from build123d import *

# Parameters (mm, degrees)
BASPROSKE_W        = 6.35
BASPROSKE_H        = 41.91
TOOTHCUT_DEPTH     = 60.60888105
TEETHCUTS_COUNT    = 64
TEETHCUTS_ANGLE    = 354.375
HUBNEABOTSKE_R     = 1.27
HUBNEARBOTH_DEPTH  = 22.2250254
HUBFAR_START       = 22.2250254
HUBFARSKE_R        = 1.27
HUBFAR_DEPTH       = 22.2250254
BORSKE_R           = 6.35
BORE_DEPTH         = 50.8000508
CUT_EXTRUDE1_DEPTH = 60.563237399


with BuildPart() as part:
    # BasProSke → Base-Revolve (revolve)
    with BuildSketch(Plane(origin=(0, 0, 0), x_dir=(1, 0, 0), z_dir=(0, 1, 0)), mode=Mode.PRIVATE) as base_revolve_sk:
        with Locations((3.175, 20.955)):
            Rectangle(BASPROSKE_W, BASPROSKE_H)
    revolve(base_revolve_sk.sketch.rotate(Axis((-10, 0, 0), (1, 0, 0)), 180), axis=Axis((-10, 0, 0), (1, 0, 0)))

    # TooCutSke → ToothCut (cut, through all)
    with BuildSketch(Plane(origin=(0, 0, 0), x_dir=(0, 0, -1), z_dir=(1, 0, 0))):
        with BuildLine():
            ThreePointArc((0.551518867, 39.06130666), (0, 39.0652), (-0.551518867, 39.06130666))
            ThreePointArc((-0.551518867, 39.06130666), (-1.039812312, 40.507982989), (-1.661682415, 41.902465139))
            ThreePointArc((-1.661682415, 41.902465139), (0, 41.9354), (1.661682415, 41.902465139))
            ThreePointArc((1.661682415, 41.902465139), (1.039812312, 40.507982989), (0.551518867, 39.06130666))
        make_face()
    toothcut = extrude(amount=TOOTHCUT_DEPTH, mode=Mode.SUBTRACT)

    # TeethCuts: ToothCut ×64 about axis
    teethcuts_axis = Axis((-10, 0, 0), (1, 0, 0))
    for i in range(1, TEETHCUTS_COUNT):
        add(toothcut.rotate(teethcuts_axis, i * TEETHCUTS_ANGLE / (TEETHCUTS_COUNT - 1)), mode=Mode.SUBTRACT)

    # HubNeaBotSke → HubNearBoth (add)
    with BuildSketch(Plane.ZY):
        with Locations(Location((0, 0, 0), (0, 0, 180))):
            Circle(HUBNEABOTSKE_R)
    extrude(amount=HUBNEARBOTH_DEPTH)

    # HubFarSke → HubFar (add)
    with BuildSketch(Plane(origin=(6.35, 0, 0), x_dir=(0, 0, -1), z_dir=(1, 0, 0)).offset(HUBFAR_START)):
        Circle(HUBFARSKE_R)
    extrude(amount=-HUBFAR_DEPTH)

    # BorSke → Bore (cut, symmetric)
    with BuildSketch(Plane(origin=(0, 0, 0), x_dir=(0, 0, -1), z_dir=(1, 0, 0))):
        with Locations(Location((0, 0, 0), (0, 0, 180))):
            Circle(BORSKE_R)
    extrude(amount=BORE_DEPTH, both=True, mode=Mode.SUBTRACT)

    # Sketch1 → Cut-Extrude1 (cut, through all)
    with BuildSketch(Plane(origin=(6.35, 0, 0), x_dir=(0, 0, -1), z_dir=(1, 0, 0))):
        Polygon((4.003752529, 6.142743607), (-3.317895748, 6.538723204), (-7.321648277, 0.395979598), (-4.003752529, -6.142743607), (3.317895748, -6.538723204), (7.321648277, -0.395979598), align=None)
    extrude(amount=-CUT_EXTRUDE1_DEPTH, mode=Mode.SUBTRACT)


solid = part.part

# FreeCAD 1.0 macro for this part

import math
import FreeCAD as App
import Part
import Sketcher
Q = App.Units.Quantity

doc = App.newDocument("Part")
body = doc.addObject("PartDesign::Body", "Body")

# Sketch on XZ plane
sketch1 = body.newObject("Sketcher::SketchObject", "Sketch")
sketch1.AttachmentSupport = (doc.getObject("XZ_Plane"), [""])
sketch1.MapMode = "FlatFace"
sketch1.addGeometry([
    Part.LineSegment(App.Vector(0, -42, 0), App.Vector(0, 0, 0)),
    Part.LineSegment(App.Vector(0, 0, 0), App.Vector(6, 0, 0)),
    Part.LineSegment(App.Vector(6, 0, 0), App.Vector(6, -42, 0)),
    Part.LineSegment(App.Vector(6, -42, 0), App.Vector(0, -42, 0)),
], False)
sketch1.addConstraint([
    Sketcher.Constraint("Coincident", 0, 2, 1, 1),
    Sketcher.Constraint("Coincident", 1, 2, 2, 1),
    Sketcher.Constraint("Coincident", 2, 2, 3, 1),
    Sketcher.Constraint("Coincident", 3, 2, 0, 1),
    Sketcher.Constraint("Vertical", 0),
    Sketcher.Constraint("Horizontal", 1),
    Sketcher.Constraint("Vertical", 2),
    Sketcher.Constraint("Horizontal", 3),
    Sketcher.Constraint("Coincident", 0, 2, -1, 1),
    Sketcher.Constraint("DistanceX", 1, 1, 1, 2, Q("0.25 in")),
    Sketcher.Constraint("DistanceY", 0, 1, 0, 2, Q("1.65 in")),
])
revolution = body.newObject("PartDesign::Revolution", "Revolution")
revolution.Profile = sketch1
revolution.ReferenceAxis = (sketch1, ["H_Axis"])
revolution.Angle = 360

# Sketch on YZ plane
sketch2 = body.newObject("Sketcher::SketchObject", "Sketch001")
sketch2.AttachmentSupport = (doc.getObject("YZ_Plane"), [""])
sketch2.MapMode = "FlatFace"
sketch2.addGeometry([
    Part.ArcOfCircle(Part.Circle(App.Vector(0, 0, 0), App.Vector(0, 0, 1), 39.1), math.radians(-0.81), math.radians(0.81)),
    Part.ArcOfCircle(Part.Circle(App.Vector(34.6, -16.2, 0), App.Vector(0, 0, 1), 16.3), math.radians(63.27), math.radians(74.04)),
    Part.ArcOfCircle(Part.Circle(App.Vector(0, 0, 0), App.Vector(0, 0, 1), 41.9), math.radians(-2.27), math.radians(2.27)),
    Part.ArcOfCircle(Part.Circle(App.Vector(34.6, 16.2, 0), App.Vector(0, 0, 1), 16.3), math.radians(-74.04), math.radians(-63.27)),
], False)
sketch2.addConstraint([
    Sketcher.Constraint("Coincident", 0, 1, 1, 2),
    Sketcher.Constraint("Coincident", 1, 1, 2, 1),
    Sketcher.Constraint("Coincident", 2, 2, 3, 2),
    Sketcher.Constraint("Coincident", 3, 1, 0, 2),
    Sketcher.Constraint("Coincident", 0, 3, -1, 1),
    Sketcher.Constraint("Coincident", 2, 3, -1, 1),
    Sketcher.Constraint("Equal", 1, 3),
    Sketcher.Constraint("Symmetric", 1, 3, 3, 3, -1),
    Sketcher.Constraint("Radius", 1, Q("0.64 in")),
    Sketcher.Constraint("Radius", 0, Q("1.538 in")),
    Sketcher.Constraint("Radius", 2, Q("1.651 in")),
    Sketcher.Constraint("DistanceY", 0, 1, 2, 2, Q("2.213201 mm")),
    Sketcher.Constraint("DistanceY", -1, 1, 3, 1, Q("0.551519 mm")),
])
pocket1 = body.newObject("PartDesign::Pocket", "Pocket")
pocket1.Profile = sketch2
pocket1.Type = "ThroughAll"
pocket1.Reversed = True
doc.recompute()

polarpattern = body.newObject("PartDesign::PolarPattern", "PolarPattern")
polarpattern.Originals = [pocket1]
polarpattern.Axis = (doc.getObject("X_Axis"), [""])
polarpattern.Angle = 360
polarpattern.Occurrences = 64
body.Tip = polarpattern

# Sketch on YZ plane
sketch3 = body.newObject("Sketcher::SketchObject", "Sketch002")
sketch3.AttachmentSupport = (doc.getObject("YZ_Plane"), [""])
sketch3.MapMode = "FlatFace"
sketch3.addGeometry(Part.Circle(App.Vector(0, 0, 0), App.Vector(0, 0, 1), 1.3), False)
sketch3.addConstraint([
    Sketcher.Constraint("Coincident", 0, 3, -1, 1),
    Sketcher.Constraint("Diameter", 0, Q("0.1 in")),
])
pad1 = body.newObject("PartDesign::Pad", "Pad")
pad1.Profile = sketch3
pad1.Length = 22.225025
pad1.Reversed = True

# Sketch on YZ plane
sketch4 = body.newObject("Sketcher::SketchObject", "Sketch003")
sketch4.AttachmentSupport = (doc.getObject("YZ_Plane"), [""])
sketch4.MapMode = "FlatFace"
sketch4.AttachmentOffset = App.Placement(App.Vector(0, 0, 28.575025), App.Rotation())
sketch4.addGeometry(Part.Circle(App.Vector(0, 0, 0), App.Vector(0, 0, 1), 1.3), False)
sketch4.addConstraint([
    Sketcher.Constraint("Coincident", 0, 3, -1, 1),
    Sketcher.Constraint("Diameter", 0, Q("0.1 in")),
])
pad2 = body.newObject("PartDesign::Pad", "Pad001")
pad2.Profile = sketch4
pad2.Length = 22.225025
pad2.Reversed = True

# Sketch on YZ plane
sketch5 = body.newObject("Sketcher::SketchObject", "Sketch004")
sketch5.AttachmentSupport = (doc.getObject("YZ_Plane"), [""])
sketch5.MapMode = "FlatFace"
sketch5.addGeometry(Part.Circle(App.Vector(0, 0, 0), App.Vector(0, 0, 1), 6), False)
sketch5.addConstraint([
    Sketcher.Constraint("Coincident", 0, 3, -1, 1),
    Sketcher.Constraint("Diameter", 0, Q("0.5 in")),
])
pocket2 = body.newObject("PartDesign::Pocket", "Pocket001")
pocket2.Profile = sketch5
pocket2.Length = 101.600102
pocket2.Midplane = True

# Sketch on YZ plane
sketch6 = body.newObject("Sketcher::SketchObject", "Sketch005")
sketch6.AttachmentSupport = (doc.getObject("YZ_Plane"), [""])
sketch6.MapMode = "FlatFace"
sketch6.AttachmentOffset = App.Placement(App.Vector(0, 0, 0.25 * 25.4), App.Rotation())
sketch6.addGeometry([
    Part.LineSegment(App.Vector(6, -4, 0), App.Vector(7, 3, 0)),  # 0
    Part.LineSegment(App.Vector(7, 3, 0), App.Vector(0, 7, 0)),  # 1
    Part.LineSegment(App.Vector(0, 7, 0), App.Vector(-6, 4, 0)),  # 2
    Part.LineSegment(App.Vector(-6, 4, 0), App.Vector(-7, -3, 0)),  # 3
    Part.LineSegment(App.Vector(-7, -3, 0), App.Vector(0, -7, 0)),  # 4
    Part.LineSegment(App.Vector(0, -7, 0), App.Vector(6, -4, 0)),  # 5
], False)
sketch6.addConstraint([
    Sketcher.Constraint("Coincident", 0, 2, 1, 1),
    Sketcher.Constraint("Coincident", 1, 2, 2, 1),
    Sketcher.Constraint("Coincident", 2, 2, 3, 1),
    Sketcher.Constraint("Coincident", 3, 2, 4, 1),
    Sketcher.Constraint("Coincident", 4, 2, 5, 1),
    Sketcher.Constraint("Coincident", 5, 2, 0, 1),
    Sketcher.Constraint("Symmetric", 0, 2, 3, 2, -1, 1),
    Sketcher.Constraint("Symmetric", 1, 2, 4, 2, -1, 1),
    Sketcher.Constraint("Symmetric", 2, 2, 5, 2, -1, 1),
    Sketcher.Constraint("Equal", 0, 1),
    Sketcher.Constraint("Equal", 1, 2),
    Sketcher.Constraint("DistanceY", 4, 2, 2, 2, Q("11.325401 mm")),
    Sketcher.Constraint("Distance", 0, Q("7.332348 mm")),
    Sketcher.Constraint("DistanceX", -1, 1, 1, 2, Q("0.39598 mm")),
    Sketcher.Constraint("DistanceY", -1, 1, 1, 2, Q("7.321648 mm")),
])
pocket3 = body.newObject("PartDesign::Pocket", "Pocket002")
pocket3.Profile = sketch6
pocket3.Type = "ThroughAll"

doc.recompute()
